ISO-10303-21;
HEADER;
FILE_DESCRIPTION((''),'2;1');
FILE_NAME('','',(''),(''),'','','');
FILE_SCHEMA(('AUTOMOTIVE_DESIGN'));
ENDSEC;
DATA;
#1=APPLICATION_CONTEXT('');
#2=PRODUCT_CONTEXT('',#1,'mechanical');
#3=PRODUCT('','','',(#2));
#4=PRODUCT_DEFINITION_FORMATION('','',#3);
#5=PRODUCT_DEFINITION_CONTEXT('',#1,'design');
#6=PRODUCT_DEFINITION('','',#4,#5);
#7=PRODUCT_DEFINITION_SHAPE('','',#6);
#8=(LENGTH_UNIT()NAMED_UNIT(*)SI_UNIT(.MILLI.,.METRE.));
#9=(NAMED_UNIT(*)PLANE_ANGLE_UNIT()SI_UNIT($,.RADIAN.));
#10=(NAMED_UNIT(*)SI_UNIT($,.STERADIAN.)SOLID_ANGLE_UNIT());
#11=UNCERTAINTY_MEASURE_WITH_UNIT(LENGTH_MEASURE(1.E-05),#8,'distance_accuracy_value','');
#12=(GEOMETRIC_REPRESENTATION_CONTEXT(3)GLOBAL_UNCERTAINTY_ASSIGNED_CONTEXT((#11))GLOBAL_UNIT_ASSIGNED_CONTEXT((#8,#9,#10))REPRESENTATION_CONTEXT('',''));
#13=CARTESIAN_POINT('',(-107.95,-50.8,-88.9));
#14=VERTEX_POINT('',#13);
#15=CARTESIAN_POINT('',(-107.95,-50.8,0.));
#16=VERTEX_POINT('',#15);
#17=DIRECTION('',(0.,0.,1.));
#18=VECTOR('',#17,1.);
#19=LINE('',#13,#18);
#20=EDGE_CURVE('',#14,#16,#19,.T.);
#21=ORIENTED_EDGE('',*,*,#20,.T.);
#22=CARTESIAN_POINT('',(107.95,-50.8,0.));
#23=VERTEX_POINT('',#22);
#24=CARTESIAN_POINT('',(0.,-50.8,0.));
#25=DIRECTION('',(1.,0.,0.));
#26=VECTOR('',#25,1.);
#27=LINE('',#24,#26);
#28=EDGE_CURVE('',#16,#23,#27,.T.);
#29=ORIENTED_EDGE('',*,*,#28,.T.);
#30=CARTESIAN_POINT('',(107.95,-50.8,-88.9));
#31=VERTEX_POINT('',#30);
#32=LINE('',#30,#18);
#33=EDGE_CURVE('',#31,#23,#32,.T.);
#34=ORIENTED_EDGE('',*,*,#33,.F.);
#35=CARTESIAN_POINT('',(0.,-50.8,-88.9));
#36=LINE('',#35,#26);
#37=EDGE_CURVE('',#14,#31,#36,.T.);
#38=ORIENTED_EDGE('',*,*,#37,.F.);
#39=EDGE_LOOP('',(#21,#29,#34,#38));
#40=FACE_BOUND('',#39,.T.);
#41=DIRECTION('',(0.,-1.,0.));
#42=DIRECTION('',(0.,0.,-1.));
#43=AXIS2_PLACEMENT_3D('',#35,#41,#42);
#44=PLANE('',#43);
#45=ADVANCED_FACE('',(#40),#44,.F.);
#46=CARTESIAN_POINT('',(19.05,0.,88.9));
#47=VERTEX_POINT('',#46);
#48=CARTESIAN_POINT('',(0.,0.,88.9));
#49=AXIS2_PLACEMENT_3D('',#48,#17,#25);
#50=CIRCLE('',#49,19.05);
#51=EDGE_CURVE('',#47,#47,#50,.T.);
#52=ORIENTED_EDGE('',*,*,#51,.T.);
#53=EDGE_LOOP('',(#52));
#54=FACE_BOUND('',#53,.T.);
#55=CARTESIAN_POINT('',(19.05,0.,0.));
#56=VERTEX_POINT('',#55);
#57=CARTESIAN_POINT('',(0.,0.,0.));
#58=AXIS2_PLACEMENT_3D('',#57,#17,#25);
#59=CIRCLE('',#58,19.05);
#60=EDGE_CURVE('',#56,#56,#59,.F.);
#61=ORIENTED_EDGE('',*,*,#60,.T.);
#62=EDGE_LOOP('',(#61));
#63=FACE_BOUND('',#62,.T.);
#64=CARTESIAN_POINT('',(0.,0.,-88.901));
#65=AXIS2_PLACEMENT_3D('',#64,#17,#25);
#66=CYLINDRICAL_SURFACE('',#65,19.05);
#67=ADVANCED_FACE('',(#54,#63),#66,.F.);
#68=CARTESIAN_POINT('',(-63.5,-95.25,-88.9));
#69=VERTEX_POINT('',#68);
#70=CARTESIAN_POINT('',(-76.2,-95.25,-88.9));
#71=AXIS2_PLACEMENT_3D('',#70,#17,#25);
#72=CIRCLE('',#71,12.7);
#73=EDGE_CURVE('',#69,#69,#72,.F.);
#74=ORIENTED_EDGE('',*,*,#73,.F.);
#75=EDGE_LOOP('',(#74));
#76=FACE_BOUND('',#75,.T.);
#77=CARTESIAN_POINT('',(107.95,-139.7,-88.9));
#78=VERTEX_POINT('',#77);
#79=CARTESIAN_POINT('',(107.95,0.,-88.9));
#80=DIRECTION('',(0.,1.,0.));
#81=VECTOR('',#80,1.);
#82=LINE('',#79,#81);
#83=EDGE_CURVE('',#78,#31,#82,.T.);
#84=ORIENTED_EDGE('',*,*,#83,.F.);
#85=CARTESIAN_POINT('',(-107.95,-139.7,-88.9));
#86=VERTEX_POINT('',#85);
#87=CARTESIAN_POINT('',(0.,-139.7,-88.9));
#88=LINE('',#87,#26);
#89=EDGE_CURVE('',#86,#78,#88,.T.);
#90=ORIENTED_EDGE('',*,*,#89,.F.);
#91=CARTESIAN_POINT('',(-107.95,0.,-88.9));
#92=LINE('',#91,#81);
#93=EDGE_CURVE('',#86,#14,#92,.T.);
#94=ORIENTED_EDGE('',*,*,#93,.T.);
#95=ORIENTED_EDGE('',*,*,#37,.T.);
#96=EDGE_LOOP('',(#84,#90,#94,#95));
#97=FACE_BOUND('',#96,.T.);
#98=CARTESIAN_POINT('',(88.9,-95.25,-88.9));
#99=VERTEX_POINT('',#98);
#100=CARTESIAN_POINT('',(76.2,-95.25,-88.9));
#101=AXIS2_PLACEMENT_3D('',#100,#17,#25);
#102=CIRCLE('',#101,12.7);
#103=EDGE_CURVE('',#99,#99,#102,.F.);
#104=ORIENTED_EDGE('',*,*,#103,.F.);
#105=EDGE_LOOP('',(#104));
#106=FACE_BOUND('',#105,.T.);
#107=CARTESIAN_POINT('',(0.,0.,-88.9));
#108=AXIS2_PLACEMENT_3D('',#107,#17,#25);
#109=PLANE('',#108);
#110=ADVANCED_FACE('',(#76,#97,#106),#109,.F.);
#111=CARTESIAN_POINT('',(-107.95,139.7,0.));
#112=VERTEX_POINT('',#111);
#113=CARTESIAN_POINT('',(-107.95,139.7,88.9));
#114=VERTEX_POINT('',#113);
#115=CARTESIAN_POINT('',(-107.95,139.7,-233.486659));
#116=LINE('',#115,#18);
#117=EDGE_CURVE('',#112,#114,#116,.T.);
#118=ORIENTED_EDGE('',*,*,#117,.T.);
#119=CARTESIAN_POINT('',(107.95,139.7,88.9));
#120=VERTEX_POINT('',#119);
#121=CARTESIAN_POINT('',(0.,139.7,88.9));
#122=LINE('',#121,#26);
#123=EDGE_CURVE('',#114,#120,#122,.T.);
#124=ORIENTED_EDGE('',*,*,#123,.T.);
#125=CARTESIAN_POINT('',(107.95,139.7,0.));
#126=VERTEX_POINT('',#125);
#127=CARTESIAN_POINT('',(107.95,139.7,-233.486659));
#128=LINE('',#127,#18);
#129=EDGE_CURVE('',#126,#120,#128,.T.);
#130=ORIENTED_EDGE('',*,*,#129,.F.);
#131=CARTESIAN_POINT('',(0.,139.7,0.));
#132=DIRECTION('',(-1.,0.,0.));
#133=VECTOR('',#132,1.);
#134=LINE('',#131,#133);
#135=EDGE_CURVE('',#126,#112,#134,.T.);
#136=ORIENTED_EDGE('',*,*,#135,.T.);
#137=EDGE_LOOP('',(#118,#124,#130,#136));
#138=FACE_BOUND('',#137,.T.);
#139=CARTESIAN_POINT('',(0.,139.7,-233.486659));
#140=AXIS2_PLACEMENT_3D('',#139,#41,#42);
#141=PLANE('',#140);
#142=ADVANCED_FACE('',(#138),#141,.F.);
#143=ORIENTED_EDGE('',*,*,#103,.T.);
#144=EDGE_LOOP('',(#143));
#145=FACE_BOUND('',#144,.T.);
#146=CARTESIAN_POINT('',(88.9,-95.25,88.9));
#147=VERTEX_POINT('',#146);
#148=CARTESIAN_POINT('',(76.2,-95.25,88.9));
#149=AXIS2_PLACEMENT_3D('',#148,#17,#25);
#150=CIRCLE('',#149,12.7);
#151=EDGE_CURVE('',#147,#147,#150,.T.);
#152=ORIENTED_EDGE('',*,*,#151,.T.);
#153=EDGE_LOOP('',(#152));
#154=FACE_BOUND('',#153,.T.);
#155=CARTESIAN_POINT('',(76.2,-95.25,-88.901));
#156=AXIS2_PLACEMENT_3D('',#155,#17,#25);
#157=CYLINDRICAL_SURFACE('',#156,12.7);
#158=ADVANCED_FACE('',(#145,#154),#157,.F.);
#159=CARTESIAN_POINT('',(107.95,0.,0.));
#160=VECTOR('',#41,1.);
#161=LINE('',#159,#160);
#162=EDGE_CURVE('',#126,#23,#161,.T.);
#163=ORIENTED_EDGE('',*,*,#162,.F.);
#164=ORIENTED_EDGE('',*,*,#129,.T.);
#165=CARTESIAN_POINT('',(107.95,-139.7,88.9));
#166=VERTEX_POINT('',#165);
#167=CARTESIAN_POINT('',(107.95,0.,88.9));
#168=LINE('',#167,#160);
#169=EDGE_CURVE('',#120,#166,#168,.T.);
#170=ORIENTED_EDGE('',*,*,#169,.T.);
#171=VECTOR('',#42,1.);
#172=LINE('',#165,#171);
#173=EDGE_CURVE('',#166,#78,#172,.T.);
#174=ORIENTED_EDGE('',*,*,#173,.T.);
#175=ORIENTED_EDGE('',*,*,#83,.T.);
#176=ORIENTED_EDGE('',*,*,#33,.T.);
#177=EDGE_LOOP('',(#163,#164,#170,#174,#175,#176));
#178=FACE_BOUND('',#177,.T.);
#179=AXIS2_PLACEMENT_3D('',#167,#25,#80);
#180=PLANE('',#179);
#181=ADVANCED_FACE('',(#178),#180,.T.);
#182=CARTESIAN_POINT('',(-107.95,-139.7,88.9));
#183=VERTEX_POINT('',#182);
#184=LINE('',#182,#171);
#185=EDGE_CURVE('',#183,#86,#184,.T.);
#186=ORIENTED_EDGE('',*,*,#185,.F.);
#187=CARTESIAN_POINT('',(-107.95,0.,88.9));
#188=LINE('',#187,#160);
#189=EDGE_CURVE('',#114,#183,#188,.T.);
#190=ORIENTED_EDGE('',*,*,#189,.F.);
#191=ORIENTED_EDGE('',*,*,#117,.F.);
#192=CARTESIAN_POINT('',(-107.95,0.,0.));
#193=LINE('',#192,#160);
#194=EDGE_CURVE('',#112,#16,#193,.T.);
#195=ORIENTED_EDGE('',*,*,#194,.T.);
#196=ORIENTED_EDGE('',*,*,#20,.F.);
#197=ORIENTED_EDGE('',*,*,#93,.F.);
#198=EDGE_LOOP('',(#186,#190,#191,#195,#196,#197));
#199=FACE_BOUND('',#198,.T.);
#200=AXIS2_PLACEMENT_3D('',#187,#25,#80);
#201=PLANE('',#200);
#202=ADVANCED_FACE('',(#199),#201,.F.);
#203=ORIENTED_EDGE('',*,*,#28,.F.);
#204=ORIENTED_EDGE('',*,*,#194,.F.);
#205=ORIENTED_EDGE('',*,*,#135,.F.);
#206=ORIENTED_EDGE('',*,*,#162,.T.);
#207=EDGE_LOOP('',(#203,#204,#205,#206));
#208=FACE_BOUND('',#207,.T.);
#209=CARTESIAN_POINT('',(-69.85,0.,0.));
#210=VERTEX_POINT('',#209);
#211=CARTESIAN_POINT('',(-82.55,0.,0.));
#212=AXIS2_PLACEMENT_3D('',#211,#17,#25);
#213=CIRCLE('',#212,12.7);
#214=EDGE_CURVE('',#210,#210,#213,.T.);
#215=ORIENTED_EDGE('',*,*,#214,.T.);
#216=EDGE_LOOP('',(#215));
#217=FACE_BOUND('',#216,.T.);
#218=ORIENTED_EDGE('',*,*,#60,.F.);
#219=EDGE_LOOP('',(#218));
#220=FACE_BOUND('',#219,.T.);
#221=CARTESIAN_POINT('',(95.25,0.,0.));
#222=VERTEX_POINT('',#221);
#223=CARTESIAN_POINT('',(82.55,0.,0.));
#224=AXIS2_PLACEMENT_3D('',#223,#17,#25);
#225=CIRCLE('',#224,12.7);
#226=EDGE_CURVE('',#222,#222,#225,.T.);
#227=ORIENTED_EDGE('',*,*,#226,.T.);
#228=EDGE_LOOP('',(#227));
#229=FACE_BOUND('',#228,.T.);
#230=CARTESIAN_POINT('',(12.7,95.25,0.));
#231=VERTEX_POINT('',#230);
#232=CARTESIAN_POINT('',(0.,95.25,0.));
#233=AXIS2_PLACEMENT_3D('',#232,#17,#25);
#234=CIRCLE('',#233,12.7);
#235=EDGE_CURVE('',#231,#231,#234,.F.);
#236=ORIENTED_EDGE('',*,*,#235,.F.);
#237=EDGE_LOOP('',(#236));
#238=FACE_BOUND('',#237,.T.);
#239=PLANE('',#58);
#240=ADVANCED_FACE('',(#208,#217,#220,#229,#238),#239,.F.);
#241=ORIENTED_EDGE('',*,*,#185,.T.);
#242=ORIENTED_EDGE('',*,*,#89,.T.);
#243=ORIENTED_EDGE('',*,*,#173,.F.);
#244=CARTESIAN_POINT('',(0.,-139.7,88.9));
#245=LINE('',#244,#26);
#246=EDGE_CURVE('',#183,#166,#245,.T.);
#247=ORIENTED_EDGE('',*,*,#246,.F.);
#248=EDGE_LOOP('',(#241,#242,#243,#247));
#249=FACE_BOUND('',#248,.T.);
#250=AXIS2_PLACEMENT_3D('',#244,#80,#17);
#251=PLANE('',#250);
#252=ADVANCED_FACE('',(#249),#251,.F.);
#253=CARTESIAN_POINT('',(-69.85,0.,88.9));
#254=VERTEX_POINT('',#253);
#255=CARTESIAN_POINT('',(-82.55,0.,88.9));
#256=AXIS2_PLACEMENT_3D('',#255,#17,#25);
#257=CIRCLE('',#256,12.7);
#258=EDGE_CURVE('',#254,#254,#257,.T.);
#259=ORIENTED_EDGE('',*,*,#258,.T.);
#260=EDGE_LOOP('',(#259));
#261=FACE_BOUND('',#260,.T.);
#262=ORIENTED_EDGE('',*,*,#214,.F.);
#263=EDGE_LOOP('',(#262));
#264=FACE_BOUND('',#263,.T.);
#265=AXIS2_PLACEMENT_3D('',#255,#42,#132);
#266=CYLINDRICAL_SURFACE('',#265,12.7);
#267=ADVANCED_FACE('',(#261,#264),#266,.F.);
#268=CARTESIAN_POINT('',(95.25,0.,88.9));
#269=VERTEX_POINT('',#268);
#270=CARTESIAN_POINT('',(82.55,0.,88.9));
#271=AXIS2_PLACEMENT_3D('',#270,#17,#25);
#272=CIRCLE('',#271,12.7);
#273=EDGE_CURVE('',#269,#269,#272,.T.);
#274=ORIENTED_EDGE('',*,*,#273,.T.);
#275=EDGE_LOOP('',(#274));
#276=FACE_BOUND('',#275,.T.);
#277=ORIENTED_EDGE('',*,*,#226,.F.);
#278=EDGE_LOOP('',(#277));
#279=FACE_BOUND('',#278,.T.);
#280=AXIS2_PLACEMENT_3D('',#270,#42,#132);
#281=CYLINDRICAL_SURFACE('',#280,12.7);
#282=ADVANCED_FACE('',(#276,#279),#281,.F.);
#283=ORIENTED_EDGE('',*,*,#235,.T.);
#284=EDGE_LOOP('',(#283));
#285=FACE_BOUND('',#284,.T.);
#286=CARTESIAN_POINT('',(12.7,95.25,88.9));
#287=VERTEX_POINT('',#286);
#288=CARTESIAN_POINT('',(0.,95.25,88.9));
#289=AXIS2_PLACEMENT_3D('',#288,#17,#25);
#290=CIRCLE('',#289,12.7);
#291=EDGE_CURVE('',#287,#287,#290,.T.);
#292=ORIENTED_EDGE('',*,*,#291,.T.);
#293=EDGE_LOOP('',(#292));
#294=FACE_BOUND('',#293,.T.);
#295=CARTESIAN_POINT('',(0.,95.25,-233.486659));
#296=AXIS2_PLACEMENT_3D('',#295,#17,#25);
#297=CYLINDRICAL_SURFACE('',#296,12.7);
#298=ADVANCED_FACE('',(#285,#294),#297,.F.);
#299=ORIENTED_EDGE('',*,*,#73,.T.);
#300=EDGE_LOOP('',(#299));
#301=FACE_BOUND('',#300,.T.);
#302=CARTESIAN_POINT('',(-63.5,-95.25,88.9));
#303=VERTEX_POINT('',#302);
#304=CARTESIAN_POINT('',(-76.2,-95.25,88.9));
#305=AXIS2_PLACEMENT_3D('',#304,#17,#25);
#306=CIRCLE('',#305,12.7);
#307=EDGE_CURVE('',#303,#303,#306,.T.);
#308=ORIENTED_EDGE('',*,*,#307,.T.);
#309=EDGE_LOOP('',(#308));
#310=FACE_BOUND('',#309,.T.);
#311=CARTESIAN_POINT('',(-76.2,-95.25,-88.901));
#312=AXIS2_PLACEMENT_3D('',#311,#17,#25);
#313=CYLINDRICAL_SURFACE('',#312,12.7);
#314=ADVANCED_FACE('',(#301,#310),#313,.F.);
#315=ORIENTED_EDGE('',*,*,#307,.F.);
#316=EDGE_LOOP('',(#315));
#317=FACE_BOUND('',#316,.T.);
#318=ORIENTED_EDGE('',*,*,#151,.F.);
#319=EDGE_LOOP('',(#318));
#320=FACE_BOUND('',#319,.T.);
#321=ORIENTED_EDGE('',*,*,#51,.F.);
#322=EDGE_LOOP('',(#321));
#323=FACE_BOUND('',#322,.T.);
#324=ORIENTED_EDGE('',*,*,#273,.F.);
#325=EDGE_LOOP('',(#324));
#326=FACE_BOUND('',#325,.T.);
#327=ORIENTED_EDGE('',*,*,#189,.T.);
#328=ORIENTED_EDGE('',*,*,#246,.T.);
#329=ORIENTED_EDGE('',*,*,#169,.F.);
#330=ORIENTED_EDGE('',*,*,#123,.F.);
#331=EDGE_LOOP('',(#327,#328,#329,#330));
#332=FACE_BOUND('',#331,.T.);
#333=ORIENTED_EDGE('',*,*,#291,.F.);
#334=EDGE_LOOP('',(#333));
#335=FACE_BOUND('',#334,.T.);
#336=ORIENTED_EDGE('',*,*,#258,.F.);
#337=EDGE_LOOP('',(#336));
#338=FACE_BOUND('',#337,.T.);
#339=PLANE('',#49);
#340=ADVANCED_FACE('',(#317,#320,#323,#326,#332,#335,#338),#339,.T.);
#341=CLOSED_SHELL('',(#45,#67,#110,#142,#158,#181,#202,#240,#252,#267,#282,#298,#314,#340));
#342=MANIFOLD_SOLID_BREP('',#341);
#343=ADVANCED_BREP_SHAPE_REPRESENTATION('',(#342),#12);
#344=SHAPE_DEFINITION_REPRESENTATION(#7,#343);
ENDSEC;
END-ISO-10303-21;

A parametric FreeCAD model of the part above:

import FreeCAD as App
import Part
import Sketcher
from FreeCAD import Vector
Q = App.Units.Quantity

doc = App.newDocument("Part")
params = doc.addObject("Spreadsheet::Sheet", "Params")
for row, (alias, value) in enumerate([
    ("sketch1_diameter", "1 in"),
    ("sketch1_width", "8.5 in"),
    ("sketch1_height", "7.5 in"),
    ("pad1_length", "3.5 in"),
    ("sketch2_width", "8.5 in"),
    ("sketch2_height", "3.5 in"),
    ("pad2_length", "3.5 in"),
    ("sketch3_diameter", "1 in"),
    ("sketch3_width", "8.5 in"),
    ("sketch3_height", "3.5 in"),
    ("pad3_length", "3.5 in"),
    ("sketch4_diameter", "1 in"),
    ("sketch5_diameter", "1 in"),
    ("sketch6_diameter", "1.5 in"),
], start=1):
    params.set(f"A{row}", alias)
    params.set(f"B{row}", "=" + value)
    params.setAlias(f"B{row}", alias)

body = doc.addObject("PartDesign::Body", "Body")

sketch1 = doc.addObject("Sketcher::SketchObject", "Sketch")
body.addObject(sketch1)
sketch1.AttachmentSupport = (doc.XY_Plane, [""])
sketch1.MapMode = "FlatFace"
sketch1.addGeometry([
    Part.LineSegment(Vector(-107.95, 50.8, 0), Vector(-107.95, -139.7, 0)),
    Part.LineSegment(Vector(-107.95, -139.7, 0), Vector(107.95, -139.7, 0)),
    Part.LineSegment(Vector(107.95, -139.7, 0), Vector(107.95, 50.8, 0)),
    Part.LineSegment(Vector(107.95, 50.8, 0), Vector(-107.95, 50.8, 0)),
    Part.Circle(Vector(-82.55, 0, 0), Vector(0, 0, 1), 12.7),
    Part.Circle(Vector(82.55, 0, 0), Vector(0, 0, 1), 12.7),
], False)
sketch1.addConstraint([
    Sketcher.Constraint("Coincident", 0, 2, 1, 1),
    Sketcher.Constraint("Coincident", 1, 2, 2, 1),
    Sketcher.Constraint("Coincident", 2, 2, 3, 1),
    Sketcher.Constraint("Coincident", 3, 2, 0, 1),
    Sketcher.Constraint("Vertical", 0),
    Sketcher.Constraint("Horizontal", 1),
    Sketcher.Constraint("Vertical", 2),
    Sketcher.Constraint("Horizontal", 3),
    Sketcher.Constraint("Equal", 4, 5),
    Sketcher.Constraint("Symmetric", 4, 3, 5, 3, -1, 1),
    Sketcher.Constraint("PointOnObject", 4, 3, -1),
    Sketcher.Constraint("Diameter", 4, Q("1 in")),
    Sketcher.Constraint("DistanceX", 1, 1, 1, 2, Q("8.5 in")),
    Sketcher.Constraint("DistanceY", 0, 2, 0, 1, Q("7.5 in")),
    Sketcher.Constraint("DistanceY", -1, 1, 2, 2, Q("2 in")),
    Sketcher.Constraint("DistanceX", 0, 2, 4, 3, Q("1 in")),
    Sketcher.Constraint("DistanceX", 5, 3, 1, 2, Q("1 in")),
])
sketch1.setExpression("Constraints[11]", "Params.sketch1_diameter")
sketch1.setExpression("Constraints[12]", "Params.sketch1_width")
sketch1.setExpression("Constraints[13]", "Params.sketch1_height")
pad1 = doc.addObject("PartDesign::Pad", "Pad")
body.addObject(pad1)
pad1.Profile = sketch1
pad1.setExpression("Length", "Params.pad1_length")

sketch2 = doc.addObject("Sketcher::SketchObject", "Sketch001")
body.addObject(sketch2)
sketch2.AttachmentSupport = (doc.XY_Plane, [""])
sketch2.MapMode = "FlatFace"
sketch2.addGeometry([
    Part.LineSegment(Vector(-107.95, -50.8, 0), Vector(-107.95, -139.7, 0)),
    Part.LineSegment(Vector(-107.95, -139.7, 0), Vector(107.95, -139.7, 0)),
    Part.LineSegment(Vector(107.95, -139.7, 0), Vector(107.95, -50.8, 0)),
    Part.LineSegment(Vector(107.95, -50.8, 0), Vector(-107.95, -50.8, 0)),
], False)
sketch2.addConstraint([
    Sketcher.Constraint("Coincident", 0, 2, 1, 1),
    Sketcher.Constraint("Coincident", 1, 2, 2, 1),
    Sketcher.Constraint("Coincident", 2, 2, 3, 1),
    Sketcher.Constraint("Coincident", 3, 2, 0, 1),
    Sketcher.Constraint("Vertical", 0),
    Sketcher.Constraint("Horizontal", 1),
    Sketcher.Constraint("Vertical", 2),
    Sketcher.Constraint("Horizontal", 3),
    Sketcher.Constraint("DistanceX", 1, 1, 1, 2, Q("8.5 in")),
    Sketcher.Constraint("DistanceY", 0, 2, 0, 1, Q("3.5 in")),
    Sketcher.Constraint("DistanceY", 2, 2, -1, 1, Q("2 in")),
    Sketcher.Constraint("DistanceX", 0, 2, -1, 1, Q("4.25 in")),
])
sketch2.setExpression("Constraints[8]", "Params.sketch2_width")
sketch2.setExpression("Constraints[9]", "Params.sketch2_height")
pad2 = doc.addObject("PartDesign::Pad", "Pad001")
body.addObject(pad2)
pad2.Profile = sketch2
pad2.setExpression("Length", "Params.pad2_length")
pad2.Reversed = True

sketch3 = doc.addObject("Sketcher::SketchObject", "Sketch002")
body.addObject(sketch3)
sketch3.AttachmentSupport = (doc.XY_Plane, [""])
sketch3.MapMode = "FlatFace"
sketch3.AttachmentOffset = App.Placement(Vector(0, 0, 3.5 * 25.4), App.Rotation())
sketch3.addGeometry([
    Part.LineSegment(Vector(-107.95, 139.7, 0), Vector(-107.95, 50.8, 0)),
    Part.LineSegment(Vector(-107.95, 50.8, 0), Vector(107.95, 50.8, 0)),
    Part.LineSegment(Vector(107.95, 50.8, 0), Vector(107.95, 139.7, 0)),
    Part.LineSegment(Vector(107.95, 139.7, 0), Vector(-107.95, 139.7, 0)),
    Part.Circle(Vector(0, 95.25, 0), Vector(0, 0, 1), 12.7),
], False)
sketch3.addConstraint([
    Sketcher.Constraint("Coincident", 0, 2, 1, 1),
    Sketcher.Constraint("Coincident", 1, 2, 2, 1),
    Sketcher.Constraint("Coincident", 2, 2, 3, 1),
    Sketcher.Constraint("Coincident", 3, 2, 0, 1),
    Sketcher.Constraint("Vertical", 0),
    Sketcher.Constraint("Horizontal", 1),
    Sketcher.Constraint("Vertical", 2),
    Sketcher.Constraint("Horizontal", 3),
    Sketcher.Constraint("PointOnObject", 4, 3, -2),
    Sketcher.Constraint("Diameter", 4, Q("1 in")),
    Sketcher.Constraint("DistanceX", 1, 1, 1, 2, Q("8.5 in")),
    Sketcher.Constraint("DistanceY", 0, 2, 0, 1, Q("3.5 in")),
    Sketcher.Constraint("DistanceY", -1, 1, 0, 2, Q("2 in")),
    Sketcher.Constraint("DistanceY", -1, 1, 4, 3, Q("3.75 in")),
    Sketcher.Constraint("DistanceX", 0, 2, -1, 1, Q("4.25 in")),
])
sketch3.setExpression("Constraints[9]", "Params.sketch3_diameter")
sketch3.setExpression("Constraints[10]", "Params.sketch3_width")
sketch3.setExpression("Constraints[11]", "Params.sketch3_height")
pad3 = doc.addObject("PartDesign::Pad", "Pad002")
body.addObject(pad3)
pad3.Profile = sketch3
pad3.setExpression("Length", "Params.pad3_length")
pad3.Reversed = True

sketch4 = doc.addObject("Sketcher::SketchObject", "Sketch003")
body.addObject(sketch4)
sketch4.AttachmentSupport = (doc.XY_Plane, [""])
sketch4.MapMode = "FlatFace"
sketch4.AttachmentOffset = App.Placement(Vector(0, 0, 3.5 * 25.4), App.Rotation())
sketch4.addGeometry(Part.Circle(Vector(-76.2, -95.25, 0), Vector(0, 0, 1), 12.7), False)
sketch4.addConstraint([
    Sketcher.Constraint("Diameter", 0, Q("1 in")),
    Sketcher.Constraint("DistanceX", 0, 3, -1, 1, Q("3 in")),
    Sketcher.Constraint("DistanceY", 0, 3, -1, 1, Q("3.75 in")),
])
sketch4.setExpression("Constraints[0]", "Params.sketch4_diameter")
pocket1 = doc.addObject("PartDesign::Pocket", "Pocket")
body.addObject(pocket1)
pocket1.Profile = sketch4
pocket1.Type = "UpToFirst"

sketch5 = doc.addObject("Sketcher::SketchObject", "Sketch004")
body.addObject(sketch5)
sketch5.AttachmentSupport = (doc.XY_Plane, [""])
sketch5.MapMode = "FlatFace"
sketch5.AttachmentOffset = App.Placement(Vector(0, 0, 3.5 * 25.4), App.Rotation())
sketch5.addGeometry(Part.Circle(Vector(76.2, -95.25, 0), Vector(0, 0, 1), 12.7), False)
sketch5.addConstraint([
    Sketcher.Constraint("Diameter", 0, Q("1 in")),
    Sketcher.Constraint("DistanceX", -1, 1, 0, 3, Q("3 in")),
    Sketcher.Constraint("DistanceY", 0, 3, -1, 1, Q("3.75 in")),
])
sketch5.setExpression("Constraints[0]", "Params.sketch5_diameter")
pocket2 = doc.addObject("PartDesign::Pocket", "Pocket001")
body.addObject(pocket2)
pocket2.Profile = sketch5
pocket2.Type = "UpToFirst"

sketch6 = doc.addObject("Sketcher::SketchObject", "Sketch005")
body.addObject(sketch6)
sketch6.AttachmentSupport = (doc.XY_Plane, [""])
sketch6.MapMode = "FlatFace"
sketch6.AttachmentOffset = App.Placement(Vector(0, 0, 3.5 * 25.4), App.Rotation())
sketch6.addGeometry(Part.Circle(Vector(0, 0, 0), Vector(0, 0, 1), 19.05), False)
sketch6.addConstraint([
    Sketcher.Constraint("Coincident", 0, 3, -1, 1),
    Sketcher.Constraint("Diameter", 0, Q("1.5 in")),
])
sketch6.setExpression("Constraints[1]", "Params.sketch6_diameter")
pocket3 = doc.addObject("PartDesign::Pocket", "Pocket002")
body.addObject(pocket3)
pocket3.Profile = sketch6
pocket3.Type = "UpToFirst"

doc.recompute()
